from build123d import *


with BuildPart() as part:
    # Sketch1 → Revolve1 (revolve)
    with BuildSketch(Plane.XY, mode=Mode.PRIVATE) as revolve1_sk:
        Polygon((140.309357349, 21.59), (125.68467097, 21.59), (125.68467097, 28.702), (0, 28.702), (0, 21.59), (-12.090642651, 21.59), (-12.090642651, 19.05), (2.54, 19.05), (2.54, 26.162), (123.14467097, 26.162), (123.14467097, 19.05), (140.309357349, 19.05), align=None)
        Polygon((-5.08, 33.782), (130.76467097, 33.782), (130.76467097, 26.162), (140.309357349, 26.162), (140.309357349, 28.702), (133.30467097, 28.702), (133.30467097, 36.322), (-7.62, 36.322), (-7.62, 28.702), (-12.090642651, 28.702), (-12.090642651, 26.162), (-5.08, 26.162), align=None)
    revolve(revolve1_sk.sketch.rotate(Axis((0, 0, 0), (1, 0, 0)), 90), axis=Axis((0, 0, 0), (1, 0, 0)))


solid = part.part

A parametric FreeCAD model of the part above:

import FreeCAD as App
import Part
import Sketcher
Q = App.Units.Quantity

doc = App.newDocument("Part")
body = doc.addObject("PartDesign::Body", "Body")
body.AllowCompound = True

# Sketch on XY plane
sketch1 = body.newObject("Sketcher::SketchObject", "Sketch")
sketch1.AttachmentSupport = (doc.getObject("XY_Plane"), [""])
sketch1.MapMode = "FlatFace"
sketch1.addGeometry([
    Part.LineSegment(App.Vector(140.3, 21.6, 0), App.Vector(125.7, 21.6, 0)),  # 0
    Part.LineSegment(App.Vector(125.7, 21.6, 0), App.Vector(125.7, 28.7, 0)),  # 1
    Part.LineSegment(App.Vector(125.7, 28.7, 0), App.Vector(0, 28.7, 0)),  # 2
    Part.LineSegment(App.Vector(0, 28.7, 0), App.Vector(0, 21.6, 0)),  # 3
    Part.LineSegment(App.Vector(0, 21.6, 0), App.Vector(-12.1, 21.6, 0)),  # 4
    Part.LineSegment(App.Vector(-12.1, 21.6, 0), App.Vector(-12.1, 19.1, 0)),  # 5
    Part.LineSegment(App.Vector(-12.1, 19.1, 0), App.Vector(2.5, 19.1, 0)),  # 6
    Part.LineSegment(App.Vector(2.5, 19.1, 0), App.Vector(2.5, 26.2, 0)),  # 7
    Part.LineSegment(App.Vector(2.5, 26.2, 0), App.Vector(123.1, 26.2, 0)),  # 8
    Part.LineSegment(App.Vector(123.1, 26.2, 0), App.Vector(123.1, 19.1, 0)),  # 9
    Part.LineSegment(App.Vector(123.1, 19.1, 0), App.Vector(140.3, 19.1, 0)),  # 10
    Part.LineSegment(App.Vector(140.3, 19.1, 0), App.Vector(140.3, 21.6, 0)),  # 11
    Part.LineSegment(App.Vector(-5.1, 33.8, 0), App.Vector(130.8, 33.8, 0)),  # 12
    Part.LineSegment(App.Vector(130.8, 33.8, 0), App.Vector(130.8, 26.2, 0)),  # 13
    Part.LineSegment(App.Vector(130.8, 26.2, 0), App.Vector(140.3, 26.2, 0)),  # 14
    Part.LineSegment(App.Vector(140.3, 26.2, 0), App.Vector(140.3, 28.7, 0)),  # 15
    Part.LineSegment(App.Vector(140.3, 28.7, 0), App.Vector(133.3, 28.7, 0)),  # 16
    Part.LineSegment(App.Vector(133.3, 28.7, 0), App.Vector(133.3, 36.3, 0)),  # 17
    Part.LineSegment(App.Vector(133.3, 36.3, 0), App.Vector(-7.6, 36.3, 0)),  # 18
    Part.LineSegment(App.Vector(-7.6, 36.3, 0), App.Vector(-7.6, 28.7, 0)),  # 19
    Part.LineSegment(App.Vector(-7.6, 28.7, 0), App.Vector(-12.1, 28.7, 0)),  # 20
    Part.LineSegment(App.Vector(-12.1, 28.7, 0), App.Vector(-12.1, 26.2, 0)),  # 21
    Part.LineSegment(App.Vector(-12.1, 26.2, 0), App.Vector(-5.1, 26.2, 0)),  # 22
    Part.LineSegment(App.Vector(-5.1, 26.2, 0), App.Vector(-5.1, 33.8, 0)),  # 23
], False)
sketch1.addConstraint([
    Sketcher.Constraint("Coincident", 0, 2, 1, 1),
    Sketcher.Constraint("Coincident", 1, 2, 2, 1),
    Sketcher.Constraint("Coincident", 2, 2, 3, 1),
    Sketcher.Constraint("Coincident", 3, 2, 4, 1),
    Sketcher.Constraint("Coincident", 4, 2, 5, 1),
    Sketcher.Constraint("Coincident", 5, 2, 6, 1),
    Sketcher.Constraint("Coincident", 6, 2, 7, 1),
    Sketcher.Constraint("Coincident", 7, 2, 8, 1),
    Sketcher.Constraint("Coincident", 8, 2, 9, 1),
    Sketcher.Constraint("Coincident", 9, 2, 10, 1),
    Sketcher.Constraint("Coincident", 10, 2, 11, 1),
    Sketcher.Constraint("Coincident", 11, 2, 0, 1),
    Sketcher.Constraint("Coincident", 12, 2, 13, 1),
    Sketcher.Constraint("Coincident", 13, 2, 14, 1),
    Sketcher.Constraint("Coincident", 14, 2, 15, 1),
    Sketcher.Constraint("Coincident", 15, 2, 16, 1),
    Sketcher.Constraint("Coincident", 16, 2, 17, 1),
    Sketcher.Constraint("Coincident", 17, 2, 18, 1),
    Sketcher.Constraint("Coincident", 18, 2, 19, 1),
    Sketcher.Constraint("Coincident", 19, 2, 20, 1),
    Sketcher.Constraint("Coincident", 20, 2, 21, 1),
    Sketcher.Constraint("Coincident", 21, 2, 22, 1),
    Sketcher.Constraint("Coincident", 22, 2, 23, 1),
    Sketcher.Constraint("Coincident", 23, 2, 12, 1),
    Sketcher.Constraint("Horizontal", 0),
    Sketcher.Constraint("Vertical", 1),
    Sketcher.Constraint("Horizontal", 2),
    Sketcher.Constraint("Vertical", 3),
    Sketcher.Constraint("Horizontal", 4),
    Sketcher.Constraint("Vertical", 5),
    Sketcher.Constraint("Horizontal", 6),
    Sketcher.Constraint("Vertical", 7),
    Sketcher.Constraint("Horizontal", 8),
    Sketcher.Constraint("Vertical", 9),
    Sketcher.Constraint("Horizontal", 10),
    Sketcher.Constraint("Vertical", 11),
    Sketcher.Constraint("Horizontal", 12),
    Sketcher.Constraint("Vertical", 13),
    Sketcher.Constraint("Horizontal", 14),
    Sketcher.Constraint("Vertical", 15),
    Sketcher.Constraint("Horizontal", 16),
    Sketcher.Constraint("Vertical", 17),
    Sketcher.Constraint("Horizontal", 18),
    Sketcher.Constraint("Vertical", 19),
    Sketcher.Constraint("Horizontal", 20),
    Sketcher.Constraint("Vertical", 21),
    Sketcher.Constraint("Horizontal", 22),
    Sketcher.Constraint("Vertical", 23),
    Sketcher.Constraint("PointOnObject", 2, 2, -2),
    Sketcher.Constraint("Horizontal", 0, 2, 3, 2),
    Sketcher.Constraint("Horizontal", 6, 2, 9, 2),
    Sketcher.Constraint("Horizontal", 8, 2, 13, 2),
    Sketcher.Constraint("Horizontal", 2, 2, 15, 2),
    Sketcher.Constraint("Horizontal", 16, 2, 19, 2),
    Sketcher.Constraint("Horizontal", 14, 2, 21, 2),
    Sketcher.Constraint("Vertical", 11, 2, 14, 2),
    Sketcher.Constraint("Vertical", 5, 2, 20, 2),
    Sketcher.Constraint("Equal", 3, 7),
    Sketcher.Constraint("Equal", 13, 17),
    Sketcher.Constraint("DistanceY", 5, 2, 5, 1, Q("0.1 in")),
    Sketcher.Constraint("DistanceY", 13, 2, 13, 1, Q("0.3 in")),
    Sketcher.Constraint("DistanceY", 1, 1, 1, 2, Q("0.28 in")),
    Sketcher.Constraint("DistanceX", -1, 1, 6, 2, Q("0.1 in")),
    Sketcher.Constraint("DistanceX", 18, 2, -1, 1, Q("0.3 in")),
    Sketcher.Constraint("DistanceX", 22, 2, -1, 1, Q("0.2 in")),
    Sketcher.Constraint("DistanceX", 8, 2, 1, 2, Q("0.1 in")),
    Sketcher.Constraint("DistanceX", 1, 2, 12, 2, Q("0.2 in")),
    Sketcher.Constraint("DistanceX", 13, 2, 16, 2, Q("0.1 in")),
    Sketcher.Constraint("DistanceY", -1, 1, 0, 2, Q("0.85 in")),
    Sketcher.Constraint("DistanceX", 2, 2, 2, 1, 125.684671),
    Sketcher.Constraint("DistanceX", 0, 2, 0, 1, 14.624686),
    Sketcher.Constraint("DistanceX", 4, 2, 4, 1, 12.090643),
])
revolution = body.newObject("PartDesign::Revolution", "Revolution")
revolution.Profile = sketch1
revolution.ReferenceAxis = (sketch1, ["H_Axis"])
revolution.Angle = 360

doc.recompute()
